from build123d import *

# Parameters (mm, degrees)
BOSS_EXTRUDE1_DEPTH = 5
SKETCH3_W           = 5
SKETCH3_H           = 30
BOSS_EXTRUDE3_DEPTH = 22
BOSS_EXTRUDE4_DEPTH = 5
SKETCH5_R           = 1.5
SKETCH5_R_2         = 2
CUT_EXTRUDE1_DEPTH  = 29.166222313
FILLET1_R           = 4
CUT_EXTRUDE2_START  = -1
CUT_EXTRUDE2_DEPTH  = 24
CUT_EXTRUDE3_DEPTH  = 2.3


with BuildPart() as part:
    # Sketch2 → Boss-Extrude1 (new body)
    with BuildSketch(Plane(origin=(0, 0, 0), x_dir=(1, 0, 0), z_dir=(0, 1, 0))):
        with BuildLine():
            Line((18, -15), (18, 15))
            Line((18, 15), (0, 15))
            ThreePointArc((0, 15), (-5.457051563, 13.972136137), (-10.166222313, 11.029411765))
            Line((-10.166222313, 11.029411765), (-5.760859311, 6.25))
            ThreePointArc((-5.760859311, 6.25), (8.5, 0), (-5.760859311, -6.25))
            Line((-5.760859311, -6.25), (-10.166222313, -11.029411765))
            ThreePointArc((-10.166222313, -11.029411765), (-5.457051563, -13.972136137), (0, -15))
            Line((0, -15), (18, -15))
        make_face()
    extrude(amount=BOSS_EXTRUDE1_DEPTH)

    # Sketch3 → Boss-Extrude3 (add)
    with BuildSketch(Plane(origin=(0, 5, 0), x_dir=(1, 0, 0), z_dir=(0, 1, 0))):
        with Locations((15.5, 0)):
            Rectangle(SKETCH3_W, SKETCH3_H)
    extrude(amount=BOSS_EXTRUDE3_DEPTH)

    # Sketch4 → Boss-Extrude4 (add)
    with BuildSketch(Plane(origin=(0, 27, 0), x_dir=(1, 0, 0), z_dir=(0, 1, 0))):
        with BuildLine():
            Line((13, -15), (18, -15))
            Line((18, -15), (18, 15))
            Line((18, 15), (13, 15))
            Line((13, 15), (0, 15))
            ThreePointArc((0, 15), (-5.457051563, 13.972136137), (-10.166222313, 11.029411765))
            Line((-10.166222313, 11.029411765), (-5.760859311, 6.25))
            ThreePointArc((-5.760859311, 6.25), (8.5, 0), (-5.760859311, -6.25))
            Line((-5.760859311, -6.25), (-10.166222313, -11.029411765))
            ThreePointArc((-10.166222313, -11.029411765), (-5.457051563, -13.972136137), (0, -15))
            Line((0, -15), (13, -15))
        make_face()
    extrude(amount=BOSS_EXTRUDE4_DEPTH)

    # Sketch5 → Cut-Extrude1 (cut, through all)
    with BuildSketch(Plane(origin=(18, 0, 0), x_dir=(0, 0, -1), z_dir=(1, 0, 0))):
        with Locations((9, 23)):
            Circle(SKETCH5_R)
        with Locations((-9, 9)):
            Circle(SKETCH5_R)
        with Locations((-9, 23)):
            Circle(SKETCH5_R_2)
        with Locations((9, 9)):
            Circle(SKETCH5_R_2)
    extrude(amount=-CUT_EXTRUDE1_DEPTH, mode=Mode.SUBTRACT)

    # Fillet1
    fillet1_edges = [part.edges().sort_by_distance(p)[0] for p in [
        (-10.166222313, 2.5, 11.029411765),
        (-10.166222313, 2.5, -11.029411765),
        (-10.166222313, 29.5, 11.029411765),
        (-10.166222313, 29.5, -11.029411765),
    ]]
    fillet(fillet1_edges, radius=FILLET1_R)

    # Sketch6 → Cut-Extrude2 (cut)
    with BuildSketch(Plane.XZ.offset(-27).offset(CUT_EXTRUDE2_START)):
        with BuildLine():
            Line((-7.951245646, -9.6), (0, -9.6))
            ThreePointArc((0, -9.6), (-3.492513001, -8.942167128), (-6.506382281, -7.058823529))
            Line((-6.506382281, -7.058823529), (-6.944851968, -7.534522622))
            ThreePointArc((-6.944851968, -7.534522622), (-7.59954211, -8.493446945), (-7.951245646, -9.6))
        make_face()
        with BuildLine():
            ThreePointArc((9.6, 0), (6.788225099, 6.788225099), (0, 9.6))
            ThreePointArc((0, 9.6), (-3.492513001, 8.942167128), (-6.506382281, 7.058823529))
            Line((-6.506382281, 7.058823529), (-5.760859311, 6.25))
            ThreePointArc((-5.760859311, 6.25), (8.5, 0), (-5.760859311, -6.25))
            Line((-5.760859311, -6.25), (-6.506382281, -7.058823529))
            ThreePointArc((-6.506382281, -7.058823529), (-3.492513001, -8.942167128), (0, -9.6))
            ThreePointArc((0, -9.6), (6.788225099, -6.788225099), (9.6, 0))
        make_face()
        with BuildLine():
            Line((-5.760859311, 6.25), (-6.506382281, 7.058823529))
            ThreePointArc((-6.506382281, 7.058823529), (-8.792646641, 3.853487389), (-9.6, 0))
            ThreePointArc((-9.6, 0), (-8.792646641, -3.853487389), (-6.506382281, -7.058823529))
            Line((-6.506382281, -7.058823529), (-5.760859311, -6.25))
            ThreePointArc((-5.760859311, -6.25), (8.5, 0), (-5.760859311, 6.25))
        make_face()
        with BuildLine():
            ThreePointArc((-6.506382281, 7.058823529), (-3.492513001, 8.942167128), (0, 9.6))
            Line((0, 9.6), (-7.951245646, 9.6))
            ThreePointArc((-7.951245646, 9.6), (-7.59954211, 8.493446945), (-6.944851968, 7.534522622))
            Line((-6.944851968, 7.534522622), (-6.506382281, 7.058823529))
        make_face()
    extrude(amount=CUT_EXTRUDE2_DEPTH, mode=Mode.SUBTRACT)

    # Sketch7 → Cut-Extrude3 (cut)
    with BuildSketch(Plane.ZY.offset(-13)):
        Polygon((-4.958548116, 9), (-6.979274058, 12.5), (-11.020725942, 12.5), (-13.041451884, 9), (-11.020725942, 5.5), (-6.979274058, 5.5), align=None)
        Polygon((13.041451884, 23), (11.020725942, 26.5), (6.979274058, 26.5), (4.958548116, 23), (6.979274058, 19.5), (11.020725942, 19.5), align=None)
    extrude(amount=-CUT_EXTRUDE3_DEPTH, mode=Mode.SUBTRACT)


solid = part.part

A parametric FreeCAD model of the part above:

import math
import FreeCAD as App
import Part
import Sketcher

V = App.Vector
Q = App.Units.Quantity


def edges_at(feature, points):
    """Names of the edges that pass closest to the given points."""
    edges = feature.Shape.Edges
    near = lambda p: min(range(len(edges)), key=lambda i: edges[i].distToShape(Part.Vertex(*p))[0])
    return sorted({f"Edge{near(p) + 1}" for p in points})

doc = App.newDocument("Part")
body = doc.addObject("PartDesign::Body", "Body")

# Sketch on XZ plane
sketch1 = body.newObject("Sketcher::SketchObject", "Sketch")
sketch1.AttachmentSupport = (doc.getObject("XZ_Plane"), [""])
sketch1.MapMode = "FlatFace"
sketch1.addGeometry(Part.LineSegment(V(18, 15, 0), V(18, -15, 0)), False)
sketch1.addGeometry(Part.LineSegment(V(18, -15, 0), V(0, -15, 0)), False)
sketch1.addGeometry(Part.ArcOfCircle(Part.Circle(V(0, 0, 0), V(0, 0, 1), 15), math.radians(-133), math.radians(-90)), False)
sketch1.addGeometry(Part.LineSegment(V(-10, -11, 0), V(-6, -6, 0)), False)
sketch1.addGeometry(Part.ArcOfCircle(Part.Circle(V(0, 0, 0), V(0, 0, 1), 8), math.radians(-133), math.radians(133)), False)
sketch1.addGeometry(Part.LineSegment(V(-6, 6, 0), V(-10, 11, 0)), False)
sketch1.addGeometry(Part.ArcOfCircle(Part.Circle(V(0, 0, 0), V(0, 0, 1), 15), math.radians(90), math.radians(133)), False)
sketch1.addGeometry(Part.LineSegment(V(0, 15, 0), V(18, 15, 0)), False)
sketch1.addConstraint(Sketcher.Constraint("Coincident", 0, 2, 1, 1))
sketch1.addConstraint(Sketcher.Constraint("Tangent", 1, 2, 2, 2))
sketch1.addConstraint(Sketcher.Constraint("Coincident", 2, 1, 3, 1))
sketch1.addConstraint(Sketcher.Constraint("Coincident", 3, 2, 4, 1))
sketch1.addConstraint(Sketcher.Constraint("Coincident", 4, 2, 5, 1))
sketch1.addConstraint(Sketcher.Constraint("Coincident", 5, 2, 6, 2))
sketch1.addConstraint(Sketcher.Constraint("Tangent", 6, 1, 7, 1))
sketch1.addConstraint(Sketcher.Constraint("Coincident", 7, 2, 0, 1))
sketch1.addConstraint(Sketcher.Constraint("Vertical", 0))
sketch1.addConstraint(Sketcher.Constraint("Horizontal", 1))
sketch1.addConstraint(Sketcher.Constraint("Horizontal", 7))
sketch1.addConstraint(Sketcher.Constraint("Coincident", 2, 3, -1, 1))
sketch1.addConstraint(Sketcher.Constraint("Coincident", 4, 3, -1, 1))
sketch1.addConstraint(Sketcher.Constraint("Coincident", 6, 3, -1, 1))
sketch1.addConstraint(Sketcher.Constraint("Equal", 2, 6))
sketch1.addConstraint(Sketcher.Constraint("Vertical", 3, 2, 4, 2))
sketch1.addConstraint(Sketcher.Constraint("Vertical", 2, 1, 5, 2))
sketch1.addConstraint(Sketcher.Constraint("Radius", 2, 15.0))
sketch1.addConstraint(Sketcher.Constraint("Radius", 4, 8.5))
sketch1.addConstraint(Sketcher.Constraint("DistanceX", 1, 2, 1, 1, 18.0))
sketch1.addConstraint(Sketcher.Constraint("DistanceY", 3, 2, 4, 2, 12.5))
sketch1.addConstraint(Sketcher.Constraint("DistanceY", 2, 1, -1, 1, 11.029412))
pad1 = body.newObject("PartDesign::Pad", "Pad")
pad1.Profile = sketch1
pad1.Length = 5
pad1.Reversed = True

# Sketch on XZ plane
sketch2 = body.newObject("Sketcher::SketchObject", "Sketch001")
sketch2.AttachmentSupport = (doc.getObject("XZ_Plane"), [""])
sketch2.MapMode = "FlatFace"
sketch2.AttachmentOffset = App.Placement(V(0, 0, -5), App.Rotation())
sketch2.addGeometry(Part.LineSegment(V(13, -15, 0), V(13, 15, 0)), False)
sketch2.addGeometry(Part.LineSegment(V(13, 15, 0), V(18, 15, 0)), False)
sketch2.addGeometry(Part.LineSegment(V(18, 15, 0), V(18, -15, 0)), False)
sketch2.addGeometry(Part.LineSegment(V(18, -15, 0), V(13, -15, 0)), False)
sketch2.addConstraint(Sketcher.Constraint("Coincident", 0, 2, 1, 1))
sketch2.addConstraint(Sketcher.Constraint("Coincident", 1, 2, 2, 1))
sketch2.addConstraint(Sketcher.Constraint("Coincident", 2, 2, 3, 1))
sketch2.addConstraint(Sketcher.Constraint("Coincident", 3, 2, 0, 1))
sketch2.addConstraint(Sketcher.Constraint("Vertical", 0))
sketch2.addConstraint(Sketcher.Constraint("Horizontal", 1))
sketch2.addConstraint(Sketcher.Constraint("Vertical", 2))
sketch2.addConstraint(Sketcher.Constraint("Horizontal", 3))
sketch2.addConstraint(Sketcher.Constraint("DistanceX", 1, 1, 1, 2, 5.0))
sketch2.addConstraint(Sketcher.Constraint("DistanceY", 0, 1, 0, 2, 30.0))
sketch2.addConstraint(Sketcher.Constraint("DistanceX", -1, 1, 0, 2, 13.0))
sketch2.addConstraint(Sketcher.Constraint("DistanceY", -1, 1, 0, 2, 15.0))
pad2 = body.newObject("PartDesign::Pad", "Pad001")
pad2.Profile = sketch2
pad2.Length = 22
pad2.Reversed = True

# Sketch on XZ plane
sketch3 = body.newObject("Sketcher::SketchObject", "Sketch002")
sketch3.AttachmentSupport = (doc.getObject("XZ_Plane"), [""])
sketch3.MapMode = "FlatFace"
sketch3.AttachmentOffset = App.Placement(V(0, 0, -27), App.Rotation())
sketch3.addGeometry(Part.LineSegment(V(18, 15, 0), V(18, -15, 0)), False)
sketch3.addGeometry(Part.LineSegment(V(18, -15, 0), V(0, -15, 0)), False)
sketch3.addGeometry(Part.ArcOfCircle(Part.Circle(V(0, 0, 0), V(0, 0, 1), 15), math.radians(-133), math.radians(-90)), False)
sketch3.addGeometry(Part.LineSegment(V(-10, -11, 0), V(-6, -6, 0)), False)
sketch3.addGeometry(Part.ArcOfCircle(Part.Circle(V(0, 0, 0), V(0, 0, 1), 8), math.radians(-133), math.radians(133)), False)
sketch3.addGeometry(Part.LineSegment(V(-6, 6, 0), V(-10, 11, 0)), False)
sketch3.addGeometry(Part.ArcOfCircle(Part.Circle(V(0, 0, 0), V(0, 0, 1), 15), math.radians(90), math.radians(133)), False)
sketch3.addGeometry(Part.LineSegment(V(0, 15, 0), V(18, 15, 0)), False)
sketch3.addConstraint(Sketcher.Constraint("Coincident", 0, 2, 1, 1))
sketch3.addConstraint(Sketcher.Constraint("Tangent", 1, 2, 2, 2))
sketch3.addConstraint(Sketcher.Constraint("Coincident", 2, 1, 3, 1))
sketch3.addConstraint(Sketcher.Constraint("Coincident", 3, 2, 4, 1))
sketch3.addConstraint(Sketcher.Constraint("Coincident", 4, 2, 5, 1))
sketch3.addConstraint(Sketcher.Constraint("Coincident", 5, 2, 6, 2))
sketch3.addConstraint(Sketcher.Constraint("Tangent", 6, 1, 7, 1))
sketch3.addConstraint(Sketcher.Constraint("Coincident", 7, 2, 0, 1))
sketch3.addConstraint(Sketcher.Constraint("Vertical", 0))
sketch3.addConstraint(Sketcher.Constraint("Horizontal", 1))
sketch3.addConstraint(Sketcher.Constraint("Horizontal", 7))
sketch3.addConstraint(Sketcher.Constraint("Coincident", 2, 3, -1, 1))
sketch3.addConstraint(Sketcher.Constraint("Coincident", 4, 3, -1, 1))
sketch3.addConstraint(Sketcher.Constraint("Coincident", 6, 3, -1, 1))
sketch3.addConstraint(Sketcher.Constraint("Equal", 2, 6))
sketch3.addConstraint(Sketcher.Constraint("Vertical", 3, 2, 4, 2))
sketch3.addConstraint(Sketcher.Constraint("Vertical", 2, 1, 5, 2))
sketch3.addConstraint(Sketcher.Constraint("Radius", 2, 15.0))
sketch3.addConstraint(Sketcher.Constraint("Radius", 4, 8.5))
sketch3.addConstraint(Sketcher.Constraint("DistanceX", 1, 2, 1, 1, 18.0))
sketch3.addConstraint(Sketcher.Constraint("DistanceY", 3, 2, 4, 2, 12.5))
sketch3.addConstraint(Sketcher.Constraint("DistanceY", 2, 1, -1, 1, 11.029412))
pad3 = body.newObject("PartDesign::Pad", "Pad002")
pad3.Profile = sketch3
pad3.Length = 5
pad3.Reversed = True

# Sketch on YZ plane
sketch4 = body.newObject("Sketcher::SketchObject", "Sketch003")
sketch4.AttachmentSupport = (doc.getObject("YZ_Plane"), [""])
sketch4.MapMode = "FlatFace"
sketch4.AttachmentOffset = App.Placement(V(0, 0, 18), App.Rotation())
sketch4.addGeometry(Part.Circle(V(23, -9, 0), V(0, 0, 1), 1.5), False)
sketch4.addGeometry(Part.Circle(V(9, 9, 0), V(0, 0, 1), 1.5), False)
sketch4.addGeometry(Part.Circle(V(23, 9, 0), V(0, 0, 1), 2), False)
sketch4.addGeometry(Part.Circle(V(9, -9, 0), V(0, 0, 1), 2), False)
sketch4.addConstraint(Sketcher.Constraint("Equal", 0, 1))
sketch4.addConstraint(Sketcher.Constraint("Equal", 2, 3))
sketch4.addConstraint(Sketcher.Constraint("Symmetric", 0, 3, 2, 3, -1))
sketch4.addConstraint(Sketcher.Constraint("Symmetric", 1, 3, 3, 3, -1))
sketch4.addConstraint(Sketcher.Constraint("Horizontal", 1, 3, 2, 3))
sketch4.addConstraint(Sketcher.Constraint("Diameter", 0, 3.0))
sketch4.addConstraint(Sketcher.Constraint("Diameter", 2, 4.0))
sketch4.addConstraint(Sketcher.Constraint("DistanceX", -1, 1, 0, 3, 23.0))
sketch4.addConstraint(Sketcher.Constraint("DistanceY", 0, 3, -1, 1, 9.0))
sketch4.addConstraint(Sketcher.Constraint("DistanceX", -1, 1, 1, 3, 9.0))
pocket1 = body.newObject("PartDesign::Pocket", "Pocket")
pocket1.Profile = sketch4
pocket1.Type = "ThroughAll"
doc.recompute()

fillet = body.newObject("PartDesign::Fillet", "Fillet")
fillet.Base = (pocket1, edges_at(pocket1, [
    (-10.166, 2.5, 11.029),
    (-10.166, 2.5, -11.029),
    (-10.166, 29.5, 11.029),
    (-10.166, 29.5, -11.029),
]))
fillet.Radius = 4

# Sketch on XZ plane
sketch5 = body.newObject("Sketcher::SketchObject", "Sketch004")
sketch5.AttachmentSupport = (doc.getObject("XZ_Plane"), [""])
sketch5.MapMode = "FlatFace"
sketch5.AttachmentOffset = App.Placement(V(0, 0, -28), App.Rotation())
sketch5.addGeometry(Part.LineSegment(V(-8, -9.6, 0), V(0, -9.6, 0)), False)
sketch5.addGeometry(Part.ArcOfCircle(Part.Circle(V(0, 0, 0), V(0, 0, 1), 9.6), math.radians(-90), math.radians(0)), False)
sketch5.addGeometry(Part.ArcOfCircle(Part.Circle(V(0, 0, 0), V(0, 0, 1), 9.6), math.radians(0), math.radians(90)), False)
sketch5.addGeometry(Part.LineSegment(V(0, 9.6, 0), V(-8, 9.6, 0)), False)
sketch5.addGeometry(Part.ArcOfCircle(Part.Circle(V(-4, 10.2, 0), V(0, 0, 1), 4), math.radians(-171), math.radians(-137)), False)
sketch5.addGeometry(Part.LineSegment(V(-6.9, 7.5, 0), V(-6.5, 7.1, 0)), False)
sketch5.addGeometry(Part.ArcOfCircle(Part.Circle(V(0, 0, 0), V(0, 0, 1), 9.6), math.radians(133), math.radians(180)), False)
sketch5.addGeometry(Part.ArcOfCircle(Part.Circle(V(0, 0, 0), V(0, 0, 1), 9.6), math.radians(180), math.radians(227)), False)
sketch5.addGeometry(Part.LineSegment(V(-6.5, -7.1, 0), V(-6.9, -7.5, 0)), False)
sketch5.addGeometry(Part.ArcOfCircle(Part.Circle(V(-4, -10.2, 0), V(0, 0, 1), 4), math.radians(137), math.radians(171)), False)
sketch5.addConstraint(Sketcher.Constraint("Tangent", 0, 2, 1, 1))
sketch5.addConstraint(Sketcher.Constraint("Tangent", 1, 2, 2, 1))
sketch5.addConstraint(Sketcher.Constraint("Tangent", 2, 2, 3, 1))
sketch5.addConstraint(Sketcher.Constraint("Coincident", 3, 2, 4, 1))
sketch5.addConstraint(Sketcher.Constraint("Tangent", 4, 2, 5, 1))
sketch5.addConstraint(Sketcher.Constraint("Coincident", 5, 2, 6, 1))
sketch5.addConstraint(Sketcher.Constraint("Tangent", 6, 2, 7, 1))
sketch5.addConstraint(Sketcher.Constraint("Coincident", 7, 2, 8, 1))
sketch5.addConstraint(Sketcher.Constraint("Tangent", 8, 2, 9, 1))
sketch5.addConstraint(Sketcher.Constraint("Coincident", 9, 2, 0, 1))
sketch5.addConstraint(Sketcher.Constraint("Horizontal", 0))
sketch5.addConstraint(Sketcher.Constraint("Horizontal", 3))
sketch5.addConstraint(Sketcher.Constraint("Coincident", 1, 3, -1, 1))
sketch5.addConstraint(Sketcher.Constraint("Coincident", 6, 3, -1, 1))
sketch5.addConstraint(Sketcher.Constraint("Equal", 1, 2))
sketch5.addConstraint(Sketcher.Constraint("Equal", 2, 6))
sketch5.addConstraint(Sketcher.Constraint("Equal", 6, 7))
sketch5.addConstraint(Sketcher.Constraint("Equal", 4, 9))
sketch5.addConstraint(Sketcher.Constraint("Symmetric", 4, 3, 9, 3, -1))
sketch5.addConstraint(Sketcher.Constraint("PointOnObject", 1, 2, -1))
sketch5.addConstraint(Sketcher.Constraint("PointOnObject", 6, 2, -1))
sketch5.addConstraint(Sketcher.Constraint("Vertical", 5, 2, 7, 2))
sketch5.addConstraint(Sketcher.Constraint("Radius", 4, 4.0))
sketch5.addConstraint(Sketcher.Constraint("Radius", 1, 9.6))
sketch5.addConstraint(Sketcher.Constraint("DistanceY", 5, 2, 4, 2, 0.475699))
sketch5.addConstraint(Sketcher.Constraint("Distance", 5, 0.646951))
sketch5.addConstraint(Sketcher.Constraint("DistanceX", 0, 1, 0, 2, 7.951246))
pocket2 = body.newObject("PartDesign::Pocket", "Pocket001")
pocket2.Profile = sketch5
pocket2.Length = 24
pocket2.Reversed = True

# Sketch on YZ plane
sketch6 = body.newObject("Sketcher::SketchObject", "Sketch005")
sketch6.AttachmentSupport = (doc.getObject("YZ_Plane"), [""])
sketch6.MapMode = "FlatFace"
sketch6.AttachmentOffset = App.Placement(V(0, 0, 13), App.Rotation())
sketch6.addGeometry(Part.LineSegment(V(9, -5, 0), V(12.5, -7, 0)), False)
sketch6.addGeometry(Part.LineSegment(V(12.5, -7, 0), V(12.5, -11, 0)), False)
sketch6.addGeometry(Part.LineSegment(V(12.5, -11, 0), V(9, -13, 0)), False)
sketch6.addGeometry(Part.LineSegment(V(9, -13, 0), V(5.5, -11, 0)), False)
sketch6.addGeometry(Part.LineSegment(V(5.5, -11, 0), V(5.5, -7, 0)), False)
sketch6.addGeometry(Part.LineSegment(V(5.5, -7, 0), V(9, -5, 0)), False)
sketch6.addGeometry(Part.LineSegment(V(23, 13, 0), V(26.5, 11, 0)), False)
sketch6.addGeometry(Part.LineSegment(V(26.5, 11, 0), V(26.5, 7, 0)), False)
sketch6.addGeometry(Part.LineSegment(V(26.5, 7, 0), V(23, 5, 0)), False)
sketch6.addGeometry(Part.LineSegment(V(23, 5, 0), V(19.5, 7, 0)), False)
sketch6.addGeometry(Part.LineSegment(V(19.5, 7, 0), V(19.5, 11, 0)), False)
sketch6.addGeometry(Part.LineSegment(V(19.5, 11, 0), V(23, 13, 0)), False)
sketch6.addConstraint(Sketcher.Constraint("Coincident", 0, 2, 1, 1))
sketch6.addConstraint(Sketcher.Constraint("Coincident", 1, 2, 2, 1))
sketch6.addConstraint(Sketcher.Constraint("Coincident", 2, 2, 3, 1))
sketch6.addConstraint(Sketcher.Constraint("Coincident", 3, 2, 4, 1))
sketch6.addConstraint(Sketcher.Constraint("Coincident", 4, 2, 5, 1))
sketch6.addConstraint(Sketcher.Constraint("Coincident", 5, 2, 0, 1))
sketch6.addConstraint(Sketcher.Constraint("Coincident", 6, 2, 7, 1))
sketch6.addConstraint(Sketcher.Constraint("Coincident", 7, 2, 8, 1))
sketch6.addConstraint(Sketcher.Constraint("Coincident", 8, 2, 9, 1))
sketch6.addConstraint(Sketcher.Constraint("Coincident", 9, 2, 10, 1))
sketch6.addConstraint(Sketcher.Constraint("Coincident", 10, 2, 11, 1))
sketch6.addConstraint(Sketcher.Constraint("Coincident", 11, 2, 6, 1))
sketch6.addConstraint(Sketcher.Constraint("Vertical", 1))
sketch6.addConstraint(Sketcher.Constraint("Vertical", 4))
sketch6.addConstraint(Sketcher.Constraint("Vertical", 7))
sketch6.addConstraint(Sketcher.Constraint("Vertical", 10))
sketch6.addConstraint(Sketcher.Constraint("Parallel", 0, 3))
sketch6.addConstraint(Sketcher.Constraint("Parallel", 2, 5))
sketch6.addConstraint(Sketcher.Constraint("Parallel", 3, 6))
sketch6.addConstraint(Sketcher.Constraint("Parallel", 5, 8))
sketch6.addConstraint(Sketcher.Constraint("Parallel", 6, 9))
sketch6.addConstraint(Sketcher.Constraint("Parallel", 8, 11))
sketch6.addConstraint(Sketcher.Constraint("Horizontal", 1, 2, 3, 2))
sketch6.addConstraint(Sketcher.Constraint("Horizontal", 0, 2, 4, 2))
sketch6.addConstraint(Sketcher.Constraint("Horizontal", 7, 2, 9, 2))
sketch6.addConstraint(Sketcher.Constraint("Horizontal", 6, 2, 10, 2))
sketch6.addConstraint(Sketcher.Constraint("Vertical", 2, 2, 5, 2))
sketch6.addConstraint(Sketcher.Constraint("Equal", 4, 7))
sketch6.addConstraint(Sketcher.Constraint("Equal", 5, 6))
sketch6.addConstraint(Sketcher.Constraint("Angle", 0, Q("-30 deg")))
sketch6.addConstraint(Sketcher.Constraint("DistanceX", -1, 1, 2, 2, 9.0))
sketch6.addConstraint(Sketcher.Constraint("DistanceX", -1, 1, 8, 2, 23.0))
sketch6.addConstraint(Sketcher.Constraint("DistanceX", 3, 2, 1, 2, 7.0))
sketch6.addConstraint(Sketcher.Constraint("DistanceY", 0, 2, 6, 2, 18.0))
sketch6.addConstraint(Sketcher.Constraint("DistanceY", 1, 2, 1, 1, 4.041452))
sketch6.addConstraint(Sketcher.Constraint("DistanceY", 2, 2, -1, 1, 13.041452))
pocket3 = body.newObject("PartDesign::Pocket", "Pocket002")
pocket3.Profile = sketch6
pocket3.Length = 2.3
pocket3.Reversed = True

doc.recompute()
